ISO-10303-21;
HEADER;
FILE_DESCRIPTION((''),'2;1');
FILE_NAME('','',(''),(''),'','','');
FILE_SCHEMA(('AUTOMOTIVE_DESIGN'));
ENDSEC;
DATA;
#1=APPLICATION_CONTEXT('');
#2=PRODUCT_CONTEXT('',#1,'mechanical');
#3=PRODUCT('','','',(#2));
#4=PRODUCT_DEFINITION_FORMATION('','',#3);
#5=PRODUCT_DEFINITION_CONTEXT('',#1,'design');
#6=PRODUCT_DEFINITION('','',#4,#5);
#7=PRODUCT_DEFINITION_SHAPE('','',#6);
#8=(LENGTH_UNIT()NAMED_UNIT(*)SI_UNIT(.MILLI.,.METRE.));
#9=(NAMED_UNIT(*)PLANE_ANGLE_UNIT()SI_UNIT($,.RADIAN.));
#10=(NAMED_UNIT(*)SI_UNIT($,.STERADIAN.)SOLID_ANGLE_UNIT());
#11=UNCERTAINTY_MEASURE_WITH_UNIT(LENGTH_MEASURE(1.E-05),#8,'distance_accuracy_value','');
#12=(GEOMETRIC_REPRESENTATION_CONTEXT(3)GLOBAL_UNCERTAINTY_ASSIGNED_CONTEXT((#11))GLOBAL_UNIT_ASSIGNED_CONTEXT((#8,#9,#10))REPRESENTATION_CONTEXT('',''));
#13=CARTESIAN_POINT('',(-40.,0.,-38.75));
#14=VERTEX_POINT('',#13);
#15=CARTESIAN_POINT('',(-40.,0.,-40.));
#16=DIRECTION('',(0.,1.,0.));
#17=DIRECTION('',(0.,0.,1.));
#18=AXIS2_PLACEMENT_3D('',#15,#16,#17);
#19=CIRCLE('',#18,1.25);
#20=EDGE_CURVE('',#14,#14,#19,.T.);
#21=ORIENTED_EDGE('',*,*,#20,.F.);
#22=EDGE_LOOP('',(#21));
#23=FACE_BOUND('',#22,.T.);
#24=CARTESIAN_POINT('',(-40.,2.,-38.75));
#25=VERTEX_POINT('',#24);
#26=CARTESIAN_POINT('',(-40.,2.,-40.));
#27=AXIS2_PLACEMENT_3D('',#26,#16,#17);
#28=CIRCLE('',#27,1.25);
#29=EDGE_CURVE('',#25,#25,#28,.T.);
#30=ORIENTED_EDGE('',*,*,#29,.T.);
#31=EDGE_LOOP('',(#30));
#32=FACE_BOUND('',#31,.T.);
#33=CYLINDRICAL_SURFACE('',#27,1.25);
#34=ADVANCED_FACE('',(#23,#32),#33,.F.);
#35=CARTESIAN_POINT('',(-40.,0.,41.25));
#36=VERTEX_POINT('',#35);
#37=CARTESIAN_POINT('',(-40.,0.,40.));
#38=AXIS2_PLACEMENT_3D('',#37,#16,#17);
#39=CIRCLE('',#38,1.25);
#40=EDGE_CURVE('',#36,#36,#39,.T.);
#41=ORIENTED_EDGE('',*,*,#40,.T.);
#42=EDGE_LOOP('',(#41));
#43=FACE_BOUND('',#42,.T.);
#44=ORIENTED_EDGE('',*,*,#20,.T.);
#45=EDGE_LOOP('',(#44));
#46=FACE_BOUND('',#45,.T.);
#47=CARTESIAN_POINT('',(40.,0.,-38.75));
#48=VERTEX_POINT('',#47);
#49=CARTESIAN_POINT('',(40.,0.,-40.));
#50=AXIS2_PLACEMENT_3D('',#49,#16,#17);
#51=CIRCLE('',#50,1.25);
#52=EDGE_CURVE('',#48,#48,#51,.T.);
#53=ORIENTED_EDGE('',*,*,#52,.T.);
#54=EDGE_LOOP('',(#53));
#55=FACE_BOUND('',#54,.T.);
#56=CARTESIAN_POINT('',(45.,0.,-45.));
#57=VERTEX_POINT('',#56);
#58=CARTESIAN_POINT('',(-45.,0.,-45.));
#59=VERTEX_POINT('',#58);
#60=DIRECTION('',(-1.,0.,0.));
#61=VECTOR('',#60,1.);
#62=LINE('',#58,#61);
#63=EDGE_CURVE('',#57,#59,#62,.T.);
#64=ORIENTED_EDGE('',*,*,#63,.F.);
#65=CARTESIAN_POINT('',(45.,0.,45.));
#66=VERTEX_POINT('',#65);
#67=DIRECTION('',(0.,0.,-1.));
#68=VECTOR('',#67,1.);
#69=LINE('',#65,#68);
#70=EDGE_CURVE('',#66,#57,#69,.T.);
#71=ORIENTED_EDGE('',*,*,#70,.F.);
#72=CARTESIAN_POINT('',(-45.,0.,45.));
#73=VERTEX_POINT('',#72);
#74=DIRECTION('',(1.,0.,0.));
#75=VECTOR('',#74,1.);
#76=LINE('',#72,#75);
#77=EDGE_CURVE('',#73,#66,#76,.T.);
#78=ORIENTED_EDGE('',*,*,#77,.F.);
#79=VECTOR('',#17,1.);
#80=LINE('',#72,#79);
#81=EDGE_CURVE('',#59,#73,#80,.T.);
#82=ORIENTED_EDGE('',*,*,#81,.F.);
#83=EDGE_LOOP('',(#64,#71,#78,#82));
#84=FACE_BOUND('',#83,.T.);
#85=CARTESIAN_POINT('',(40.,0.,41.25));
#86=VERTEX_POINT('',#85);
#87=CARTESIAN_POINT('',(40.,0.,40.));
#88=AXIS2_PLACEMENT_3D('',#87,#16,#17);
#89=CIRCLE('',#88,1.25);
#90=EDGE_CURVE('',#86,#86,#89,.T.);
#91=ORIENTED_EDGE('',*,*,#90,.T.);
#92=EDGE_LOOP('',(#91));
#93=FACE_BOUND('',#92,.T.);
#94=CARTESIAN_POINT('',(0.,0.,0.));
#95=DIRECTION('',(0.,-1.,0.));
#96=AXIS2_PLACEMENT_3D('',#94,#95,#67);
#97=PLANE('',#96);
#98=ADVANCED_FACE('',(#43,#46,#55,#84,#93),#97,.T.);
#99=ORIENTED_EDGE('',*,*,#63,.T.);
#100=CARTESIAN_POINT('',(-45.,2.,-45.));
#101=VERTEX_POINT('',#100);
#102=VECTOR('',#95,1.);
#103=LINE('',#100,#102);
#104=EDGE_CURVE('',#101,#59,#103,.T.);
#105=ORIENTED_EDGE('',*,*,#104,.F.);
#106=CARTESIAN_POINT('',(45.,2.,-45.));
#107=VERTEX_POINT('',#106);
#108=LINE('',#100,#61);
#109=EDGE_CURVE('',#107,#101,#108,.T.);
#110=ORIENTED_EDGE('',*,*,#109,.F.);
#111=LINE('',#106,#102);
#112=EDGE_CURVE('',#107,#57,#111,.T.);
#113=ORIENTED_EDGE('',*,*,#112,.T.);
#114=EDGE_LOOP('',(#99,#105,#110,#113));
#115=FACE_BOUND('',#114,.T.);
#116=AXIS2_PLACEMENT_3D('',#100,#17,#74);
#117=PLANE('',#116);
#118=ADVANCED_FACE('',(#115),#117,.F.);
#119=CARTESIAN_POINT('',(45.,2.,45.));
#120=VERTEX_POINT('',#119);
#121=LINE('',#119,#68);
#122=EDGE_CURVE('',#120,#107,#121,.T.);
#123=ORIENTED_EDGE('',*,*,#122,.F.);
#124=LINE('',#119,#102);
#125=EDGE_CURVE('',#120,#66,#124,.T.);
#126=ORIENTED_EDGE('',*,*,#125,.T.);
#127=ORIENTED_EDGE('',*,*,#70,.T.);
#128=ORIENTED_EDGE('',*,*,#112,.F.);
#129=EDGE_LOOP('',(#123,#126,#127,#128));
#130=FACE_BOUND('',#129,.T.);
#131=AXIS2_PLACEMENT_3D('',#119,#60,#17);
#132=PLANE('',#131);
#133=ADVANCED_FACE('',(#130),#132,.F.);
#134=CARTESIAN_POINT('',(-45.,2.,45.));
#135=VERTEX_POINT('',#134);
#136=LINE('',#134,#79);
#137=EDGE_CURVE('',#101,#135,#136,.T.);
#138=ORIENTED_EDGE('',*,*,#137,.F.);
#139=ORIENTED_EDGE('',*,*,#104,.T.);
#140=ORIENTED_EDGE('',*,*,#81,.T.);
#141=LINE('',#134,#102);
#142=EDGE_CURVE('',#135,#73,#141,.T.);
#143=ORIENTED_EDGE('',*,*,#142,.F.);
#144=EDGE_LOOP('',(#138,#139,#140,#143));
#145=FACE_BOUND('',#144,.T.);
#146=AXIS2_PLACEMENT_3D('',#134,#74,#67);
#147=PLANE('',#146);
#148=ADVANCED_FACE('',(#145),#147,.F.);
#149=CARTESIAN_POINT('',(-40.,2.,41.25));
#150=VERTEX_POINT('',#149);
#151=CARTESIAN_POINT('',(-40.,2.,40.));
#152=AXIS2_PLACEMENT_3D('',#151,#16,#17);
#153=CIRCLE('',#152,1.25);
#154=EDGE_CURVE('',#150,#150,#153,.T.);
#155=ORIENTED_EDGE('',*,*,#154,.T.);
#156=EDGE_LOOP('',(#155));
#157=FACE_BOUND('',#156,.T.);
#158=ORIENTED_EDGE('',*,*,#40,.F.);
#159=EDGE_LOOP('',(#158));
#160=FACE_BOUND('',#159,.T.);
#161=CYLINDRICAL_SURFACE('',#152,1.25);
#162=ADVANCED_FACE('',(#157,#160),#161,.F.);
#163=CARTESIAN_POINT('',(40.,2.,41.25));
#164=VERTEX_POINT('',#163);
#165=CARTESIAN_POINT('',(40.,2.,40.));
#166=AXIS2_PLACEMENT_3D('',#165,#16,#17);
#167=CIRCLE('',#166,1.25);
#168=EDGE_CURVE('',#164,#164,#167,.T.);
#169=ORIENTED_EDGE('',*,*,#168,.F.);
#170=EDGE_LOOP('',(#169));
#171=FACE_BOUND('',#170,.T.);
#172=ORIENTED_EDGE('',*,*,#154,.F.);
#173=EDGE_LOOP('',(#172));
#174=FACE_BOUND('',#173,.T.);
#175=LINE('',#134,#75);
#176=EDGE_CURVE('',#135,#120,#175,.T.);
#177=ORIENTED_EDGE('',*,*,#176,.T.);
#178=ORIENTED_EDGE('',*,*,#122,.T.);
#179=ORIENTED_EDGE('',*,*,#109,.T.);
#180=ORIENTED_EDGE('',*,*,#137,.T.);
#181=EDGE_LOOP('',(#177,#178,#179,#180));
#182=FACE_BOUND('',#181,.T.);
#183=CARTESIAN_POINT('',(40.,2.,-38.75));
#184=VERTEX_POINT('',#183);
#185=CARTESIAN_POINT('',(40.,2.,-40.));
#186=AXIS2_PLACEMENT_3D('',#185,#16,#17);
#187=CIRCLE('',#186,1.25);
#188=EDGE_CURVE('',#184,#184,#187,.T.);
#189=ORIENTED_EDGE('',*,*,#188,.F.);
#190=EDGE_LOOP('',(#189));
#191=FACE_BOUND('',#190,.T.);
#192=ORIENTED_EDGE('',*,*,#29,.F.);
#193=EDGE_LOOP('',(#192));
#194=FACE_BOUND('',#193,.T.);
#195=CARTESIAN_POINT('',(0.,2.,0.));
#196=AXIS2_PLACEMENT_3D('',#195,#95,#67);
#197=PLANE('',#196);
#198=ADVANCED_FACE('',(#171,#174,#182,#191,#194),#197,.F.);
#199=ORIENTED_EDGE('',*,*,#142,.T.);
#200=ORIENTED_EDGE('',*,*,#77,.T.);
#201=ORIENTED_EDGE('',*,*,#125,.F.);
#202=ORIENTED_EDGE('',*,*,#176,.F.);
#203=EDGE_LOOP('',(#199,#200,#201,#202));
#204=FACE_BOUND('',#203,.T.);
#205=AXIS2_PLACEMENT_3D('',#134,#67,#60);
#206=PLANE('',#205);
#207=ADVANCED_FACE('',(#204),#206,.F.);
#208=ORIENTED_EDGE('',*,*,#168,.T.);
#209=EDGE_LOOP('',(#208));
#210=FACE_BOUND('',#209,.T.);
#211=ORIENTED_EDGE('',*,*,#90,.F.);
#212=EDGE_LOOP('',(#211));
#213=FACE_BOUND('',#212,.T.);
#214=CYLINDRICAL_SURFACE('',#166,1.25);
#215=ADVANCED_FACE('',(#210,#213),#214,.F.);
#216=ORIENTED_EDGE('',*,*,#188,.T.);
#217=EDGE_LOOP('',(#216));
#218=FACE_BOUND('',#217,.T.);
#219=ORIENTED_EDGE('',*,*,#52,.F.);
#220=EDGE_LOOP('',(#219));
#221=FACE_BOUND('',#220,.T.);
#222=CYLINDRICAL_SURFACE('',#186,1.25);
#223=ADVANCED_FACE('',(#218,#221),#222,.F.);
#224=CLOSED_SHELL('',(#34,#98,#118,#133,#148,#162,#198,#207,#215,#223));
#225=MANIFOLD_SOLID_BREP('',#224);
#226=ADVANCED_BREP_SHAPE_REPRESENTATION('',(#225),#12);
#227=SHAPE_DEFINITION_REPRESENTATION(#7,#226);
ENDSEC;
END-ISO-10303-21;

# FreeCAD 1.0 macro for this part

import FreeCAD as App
import Part
import Sketcher
from FreeCAD import Vector

doc = App.newDocument("Part")
body = doc.addObject("PartDesign::Body", "Body")

# Sketch on XZ plane
sketch1 = body.newObject("Sketcher::SketchObject", "Sketch")
sketch1.AttachmentSupport = (doc.getObject("XZ_Plane"), [""])
sketch1.MapMode = "FlatFace"
sketch1.addGeometry(Part.LineSegment(Vector(-45, -45, 0), Vector(-45, 45, 0)), False)
sketch1.addGeometry(Part.LineSegment(Vector(-45, 45, 0), Vector(45, 45, 0)), False)
sketch1.addGeometry(Part.LineSegment(Vector(45, 45, 0), Vector(45, -45, 0)), False)
sketch1.addGeometry(Part.LineSegment(Vector(45, -45, 0), Vector(-45, -45, 0)), False)
sketch1.addConstraint(Sketcher.Constraint("Coincident", 0, 2, 1, 1))
sketch1.addConstraint(Sketcher.Constraint("Coincident", 1, 2, 2, 1))
sketch1.addConstraint(Sketcher.Constraint("Coincident", 2, 2, 3, 1))
sketch1.addConstraint(Sketcher.Constraint("Coincident", 3, 2, 0, 1))
sketch1.addConstraint(Sketcher.Constraint("Vertical", 0))
sketch1.addConstraint(Sketcher.Constraint("Horizontal", 1))
sketch1.addConstraint(Sketcher.Constraint("Vertical", 2))
sketch1.addConstraint(Sketcher.Constraint("Horizontal", 3))
sketch1.addConstraint(Sketcher.Constraint("Symmetric", 0, 2, 2, 2, -1, 1))
sketch1.addConstraint(Sketcher.Constraint("Equal", 3, 0))
sketch1.addConstraint(Sketcher.Constraint("DistanceX", 1, 1, 1, 2, 90.0))
pad1 = body.newObject("PartDesign::Pad", "Pad")
pad1.Profile = sketch1
pad1.Length = 2
pad1.Reversed = True

# Sketch on XZ plane
sketch2 = body.newObject("Sketcher::SketchObject", "Sketch001")
sketch2.AttachmentSupport = (doc.getObject("XZ_Plane"), [""])
sketch2.MapMode = "FlatFace"
sketch2.AttachmentOffset = App.Placement(Vector(0, 0, -2), App.Rotation())
sketch2.addGeometry(Part.Circle(Vector(-40, -40, 0), Vector(0, 0, 1), 1.2), False)
sketch2.addGeometry(Part.Circle(Vector(40, -40, 0), Vector(0, 0, 1), 1.2), False)
sketch2.addGeometry(Part.Circle(Vector(40, 40, 0), Vector(0, 0, 1), 1.2), False)
sketch2.addGeometry(Part.Circle(Vector(-40, 40, 0), Vector(0, 0, 1), 1.2), False)
sketch2.addConstraint(Sketcher.Constraint("Equal", 0, 1))
sketch2.addConstraint(Sketcher.Constraint("Equal", 1, 2))
sketch2.addConstraint(Sketcher.Constraint("Equal", 2, 3))
sketch2.addConstraint(Sketcher.Constraint("Symmetric", 0, 3, 2, 3, -1, 1))
sketch2.addConstraint(Sketcher.Constraint("Symmetric", 1, 3, 3, 3, -1, 1))
sketch2.addConstraint(Sketcher.Constraint("Symmetric", 0, 3, 1, 3, -2))
sketch2.addConstraint(Sketcher.Constraint("Diameter", 0, 2.5))
sketch2.addConstraint(Sketcher.Constraint("DistanceX", 0, 3, -1, 1, 40.0))
sketch2.addConstraint(Sketcher.Constraint("DistanceY", 0, 3, -1, 1, 40.0))
doc.recompute()
hole = body.newObject("PartDesign::Hole", "Hole")
hole.Profile = sketch2
hole.ThreadType = "None"
hole.Diameter = 2.5
hole.DepthType = "ThroughAll"
hole.Reversed = True

doc.recompute()
